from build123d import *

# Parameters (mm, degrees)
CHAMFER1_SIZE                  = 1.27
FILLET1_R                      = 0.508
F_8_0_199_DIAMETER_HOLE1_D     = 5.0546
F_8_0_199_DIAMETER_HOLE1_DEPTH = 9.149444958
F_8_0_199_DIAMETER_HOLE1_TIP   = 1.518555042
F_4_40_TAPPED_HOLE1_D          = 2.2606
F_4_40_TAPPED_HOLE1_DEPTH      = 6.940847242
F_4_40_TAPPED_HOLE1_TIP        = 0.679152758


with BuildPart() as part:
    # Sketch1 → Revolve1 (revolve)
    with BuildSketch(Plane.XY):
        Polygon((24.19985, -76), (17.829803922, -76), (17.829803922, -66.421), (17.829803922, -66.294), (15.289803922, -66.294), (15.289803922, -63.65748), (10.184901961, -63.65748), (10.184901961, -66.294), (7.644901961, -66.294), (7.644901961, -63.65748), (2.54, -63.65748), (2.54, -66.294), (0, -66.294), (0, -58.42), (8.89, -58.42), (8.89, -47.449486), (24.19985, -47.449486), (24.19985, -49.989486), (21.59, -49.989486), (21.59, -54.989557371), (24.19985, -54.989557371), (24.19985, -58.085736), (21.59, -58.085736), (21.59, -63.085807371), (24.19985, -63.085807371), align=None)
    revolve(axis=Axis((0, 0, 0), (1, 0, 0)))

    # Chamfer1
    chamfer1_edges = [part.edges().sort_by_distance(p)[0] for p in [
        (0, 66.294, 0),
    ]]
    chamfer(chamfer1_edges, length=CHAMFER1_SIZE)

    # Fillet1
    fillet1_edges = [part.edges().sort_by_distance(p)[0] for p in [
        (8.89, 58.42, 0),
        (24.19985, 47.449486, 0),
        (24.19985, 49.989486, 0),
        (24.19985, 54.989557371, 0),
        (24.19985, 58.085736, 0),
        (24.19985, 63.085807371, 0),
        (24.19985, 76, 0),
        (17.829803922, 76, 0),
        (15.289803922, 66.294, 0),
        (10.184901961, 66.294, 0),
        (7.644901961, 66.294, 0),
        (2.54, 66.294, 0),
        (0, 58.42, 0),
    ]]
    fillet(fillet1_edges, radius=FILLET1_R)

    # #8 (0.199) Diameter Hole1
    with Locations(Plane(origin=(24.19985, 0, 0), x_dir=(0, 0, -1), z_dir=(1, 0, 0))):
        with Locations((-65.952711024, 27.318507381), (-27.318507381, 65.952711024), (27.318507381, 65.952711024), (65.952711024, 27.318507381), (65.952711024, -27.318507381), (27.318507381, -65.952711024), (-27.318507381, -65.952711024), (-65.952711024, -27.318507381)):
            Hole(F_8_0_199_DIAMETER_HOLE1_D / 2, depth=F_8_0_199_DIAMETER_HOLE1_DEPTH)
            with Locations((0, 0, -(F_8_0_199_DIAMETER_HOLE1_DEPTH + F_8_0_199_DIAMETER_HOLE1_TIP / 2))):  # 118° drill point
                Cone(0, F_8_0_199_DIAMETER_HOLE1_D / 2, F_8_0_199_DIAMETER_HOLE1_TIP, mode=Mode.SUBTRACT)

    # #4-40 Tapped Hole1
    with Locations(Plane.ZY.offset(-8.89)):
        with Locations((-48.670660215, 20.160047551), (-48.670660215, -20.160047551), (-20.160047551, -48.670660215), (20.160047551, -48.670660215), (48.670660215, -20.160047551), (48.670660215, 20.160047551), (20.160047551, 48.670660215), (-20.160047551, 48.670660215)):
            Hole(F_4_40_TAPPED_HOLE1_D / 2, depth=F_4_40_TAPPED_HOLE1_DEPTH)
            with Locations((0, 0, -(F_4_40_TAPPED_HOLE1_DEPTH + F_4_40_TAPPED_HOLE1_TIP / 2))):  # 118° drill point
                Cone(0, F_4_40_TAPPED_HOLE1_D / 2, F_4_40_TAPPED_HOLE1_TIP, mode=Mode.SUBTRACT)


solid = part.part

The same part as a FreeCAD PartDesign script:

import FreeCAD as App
import Part
import Sketcher
Q = App.Units.Quantity


def edges_at(feature, points):
    """Names of the edges that pass closest to the given points."""
    edges = feature.Shape.Edges
    near = lambda p: min(range(len(edges)), key=lambda i: edges[i].distToShape(Part.Vertex(*p))[0])
    return sorted({f"Edge{near(p) + 1}" for p in points})


def add_polygon(sketch, points):
    """Adds a closed chain of lines whose ends are joined by coincident constraints."""
    first, n = sketch.GeometryCount, len(points)
    for a, b in zip(points, points[1:] + points[:1]):
        sketch.addGeometry(Part.LineSegment(App.Vector(*a, 0), App.Vector(*b, 0)), False)
    for i in range(n):
        sketch.addConstraint(Sketcher.Constraint("Coincident", first + i, 2, first + (i + 1) % n, 1))

doc = App.newDocument("Part")
params = doc.addObject("Spreadsheet::Sheet", "Params")
for row, (alias, value) in enumerate([
    ("sketch1_width", "0.1 in"),
    ("sketch1_width2", "0.35 in"),
    ("sketch1_height", "0.31 in"),
    ("revolution_angle", "360 deg"),
    ("chamfer_size", "0.05 in"),
    ("fillet_radius", "0.02 in"),
    ("sketch2_diameter", "0.199 in"),
    ("hole_diameter", "0.199 in"),
    ("hole_depth", "9.149445 mm"),
    ("sketch3_diameter", "0.089 in"),
    ("hole2_diameter", "0.089 in"),
    ("hole2_depth", "6.940847 mm"),
], start=1):
    params.set(f"A{row}", alias)
    params.set(f"B{row}", "=" + value)
    params.setAlias(f"B{row}", alias)

body = doc.addObject("PartDesign::Body", "Body")

sketch1 = doc.addObject("Sketcher::SketchObject", "Sketch")
body.addObject(sketch1)
sketch1.AttachmentSupport = (doc.XY_Plane, [""])
sketch1.MapMode = "FlatFace"
add_polygon(sketch1, [(17.8, -76), (24.2, -76), (24.2, -63.1), (21.6, -63.1), (21.6, -58.1), (24.2, -58.1), (24.2, -55), (21.6, -55), (21.6, -50), (24.2, -50), (24.2, -47.4), (8.9, -47.4), (8.9, -58.4), (0, -58.4), (0, -66.3), (2.5, -66.3), (2.5, -63.7), (7.6, -63.7), (7.6, -66.3), (10.2, -66.3), (10.2, -63.7), (15.3, -63.7), (15.3, -66.3), (17.8, -66.3)])
sketch1.addConstraint(Sketcher.Constraint("Horizontal", 0))
sketch1.addConstraint(Sketcher.Constraint("Vertical", 1))
sketch1.addConstraint(Sketcher.Constraint("Horizontal", 2))
sketch1.addConstraint(Sketcher.Constraint("Vertical", 3))
sketch1.addConstraint(Sketcher.Constraint("Horizontal", 4))
sketch1.addConstraint(Sketcher.Constraint("Vertical", 5))
sketch1.addConstraint(Sketcher.Constraint("Horizontal", 6))
sketch1.addConstraint(Sketcher.Constraint("Vertical", 7))
sketch1.addConstraint(Sketcher.Constraint("Horizontal", 8))
sketch1.addConstraint(Sketcher.Constraint("Vertical", 9))
sketch1.addConstraint(Sketcher.Constraint("Horizontal", 10))
sketch1.addConstraint(Sketcher.Constraint("Vertical", 11))
sketch1.addConstraint(Sketcher.Constraint("Horizontal", 12))
sketch1.addConstraint(Sketcher.Constraint("Vertical", 13))
sketch1.addConstraint(Sketcher.Constraint("Horizontal", 14))
sketch1.addConstraint(Sketcher.Constraint("Vertical", 15))
sketch1.addConstraint(Sketcher.Constraint("Horizontal", 16))
sketch1.addConstraint(Sketcher.Constraint("Vertical", 17))
sketch1.addConstraint(Sketcher.Constraint("Horizontal", 18))
sketch1.addConstraint(Sketcher.Constraint("Vertical", 19))
sketch1.addConstraint(Sketcher.Constraint("Horizontal", 20))
sketch1.addConstraint(Sketcher.Constraint("Vertical", 21))
sketch1.addConstraint(Sketcher.Constraint("Horizontal", 22))
sketch1.addConstraint(Sketcher.Constraint("Vertical", 23))
sketch1.addConstraint(Sketcher.Constraint("PointOnObject", 12, 2, -2))
sketch1.addConstraint(Sketcher.Constraint("Horizontal", 14, 2, 17, 2))
sketch1.addConstraint(Sketcher.Constraint("Horizontal", 16, 2, 19, 2))
sketch1.addConstraint(Sketcher.Constraint("Horizontal", 18, 2, 21, 2))
sketch1.addConstraint(Sketcher.Constraint("Vertical", 1, 2, 4, 2))
sketch1.addConstraint(Sketcher.Constraint("Vertical", 3, 2, 6, 2))
sketch1.addConstraint(Sketcher.Constraint("Vertical", 5, 2, 8, 2))
sketch1.addConstraint(Sketcher.Constraint("Equal", 14, 18))
sketch1.addConstraint(Sketcher.Constraint("Equal", 16, 20))
sketch1.addConstraint(Sketcher.Constraint("Equal", 18, 22))
sketch1.addConstraint(Sketcher.Constraint("Equal", 3, 7))
sketch1.addConstraint(Sketcher.Constraint("Equal", 22, 9))
sketch1.addConstraint(Sketcher.Constraint("DistanceX", 14, 1, 14, 2, Q("0.1 in")))
sketch1.addConstraint(Sketcher.Constraint("DistanceX", 12, 2, 12, 1, Q("0.35 in")))
sketch1.addConstraint(Sketcher.Constraint("DistanceY", 13, 2, 13, 1, Q("0.31 in")))
sketch1.addConstraint(Sketcher.Constraint("DistanceY", 11, 2, -1, 1, Q("2.3 in")))
sketch1.addConstraint(Sketcher.Constraint("DistanceX", 10, 2, 7, 2, Q("0.5 in")))
sketch1.addConstraint(Sketcher.Constraint("DistanceY", 15, 1, 15, 2, Q("0.1038 in")))
sketch1.addConstraint(Sketcher.Constraint("DistanceX", 16, 1, 16, 2, 5.104902))
sketch1.addConstraint(Sketcher.Constraint("DistanceY", 23, 2, 23, 1, 9.706))
sketch1.addConstraint(Sketcher.Constraint("DistanceX", 2, 2, 2, 1, 2.60985))
sketch1.addConstraint(Sketcher.Constraint("DistanceY", 3, 1, 3, 2, 5.000071))
sketch1.addConstraint(Sketcher.Constraint("DistanceY", 5, 1, 5, 2, 3.096179))
sketch1.addConstraint(Sketcher.Constraint("DistanceY", 1, 1, 1, 2, 12.914193))
sketch1.setExpression("Constraints[60]", "Params.sketch1_width")
sketch1.setExpression("Constraints[61]", "Params.sketch1_width2")
sketch1.setExpression("Constraints[62]", "Params.sketch1_height")
revolution = doc.addObject("PartDesign::Revolution", "Revolution")
body.addObject(revolution)
revolution.Profile = sketch1
revolution.ReferenceAxis = (sketch1, ["H_Axis"])
revolution.setExpression("Angle", "Params.revolution_angle")
doc.recompute()

chamfer = doc.addObject("PartDesign::Chamfer", "Chamfer")
body.addObject(chamfer)
chamfer.Base = (revolution, edges_at(revolution, [(0, 66.294, 0)]))
chamfer.setExpression("Size", "Params.chamfer_size")
doc.recompute()

fillet = doc.addObject("PartDesign::Fillet", "Fillet")
body.addObject(fillet)
fillet.Base = (chamfer, edges_at(chamfer, [
    (8.89, 58.42, 0),
    (24.2, 47.449, 0),
    (24.2, 49.989, 0),
    (24.2, 54.99, 0),
    (24.2, 58.086, 0),
    (24.2, 63.086, 0),
    (24.2, 76, 0),
    (17.83, 76, 0),
    (15.29, 66.294, 0),
    (10.185, 66.294, 0),
    (7.645, 66.294, 0),
    (2.54, 66.294, 0),
    (0, 58.42, 0),
]))
fillet.setExpression("Radius", "Params.fillet_radius")

sketch2 = doc.addObject("Sketcher::SketchObject", "Sketch001")
body.addObject(sketch2)
sketch2.AttachmentSupport = (doc.YZ_Plane, [""])
sketch2.MapMode = "FlatFace"
sketch2.AttachmentOffset = App.Placement(App.Vector(0, 0, 24.19985), App.Rotation())
sketch2.addGeometry(Part.Circle(App.Vector(27.3, 66, 0), App.Vector(0, 0, 1), 2.5), False)
sketch2.addGeometry(Part.Circle(App.Vector(66, 27.3, 0), App.Vector(0, 0, 1), 2.5), False)
sketch2.addGeometry(Part.Circle(App.Vector(66, -27.3, 0), App.Vector(0, 0, 1), 2.5), False)
sketch2.addGeometry(Part.Circle(App.Vector(27.3, -66, 0), App.Vector(0, 0, 1), 2.5), False)
sketch2.addGeometry(Part.Circle(App.Vector(-27.3, -66, 0), App.Vector(0, 0, 1), 2.5), False)
sketch2.addGeometry(Part.Circle(App.Vector(-66, -27.3, 0), App.Vector(0, 0, 1), 2.5), False)
sketch2.addGeometry(Part.Circle(App.Vector(-66, 27.3, 0), App.Vector(0, 0, 1), 2.5), False)
sketch2.addGeometry(Part.Circle(App.Vector(-27.3, 66, 0), App.Vector(0, 0, 1), 2.5), False)
sketch2.addConstraint(Sketcher.Constraint("Equal", 0, 1))
sketch2.addConstraint(Sketcher.Constraint("Equal", 1, 2))
sketch2.addConstraint(Sketcher.Constraint("Equal", 2, 3))
sketch2.addConstraint(Sketcher.Constraint("Equal", 3, 4))
sketch2.addConstraint(Sketcher.Constraint("Equal", 4, 5))
sketch2.addConstraint(Sketcher.Constraint("Equal", 5, 6))
sketch2.addConstraint(Sketcher.Constraint("Equal", 6, 7))
sketch2.addConstraint(Sketcher.Constraint("Symmetric", 0, 3, 4, 3, -1, 1))
sketch2.addConstraint(Sketcher.Constraint("Symmetric", 1, 3, 5, 3, -1, 1))
sketch2.addConstraint(Sketcher.Constraint("Symmetric", 2, 3, 6, 3, -1, 1))
sketch2.addConstraint(Sketcher.Constraint("Symmetric", 3, 3, 7, 3, -1, 1))
sketch2.addConstraint(Sketcher.Constraint("Symmetric", 3, 3, 4, 3, -2))
sketch2.addConstraint(Sketcher.Constraint("Symmetric", 2, 3, 5, 3, -2))
sketch2.addConstraint(Sketcher.Constraint("Diameter", 0, Q("0.199 in")))
sketch2.addConstraint(Sketcher.Constraint("DistanceY", -1, 1, 0, 3, 65.952711))
sketch2.addConstraint(Sketcher.Constraint("DistanceX", -1, 1, 1, 3, 65.952711))
sketch2.addConstraint(Sketcher.Constraint("DistanceY", 2, 3, 0, 3, 93.271218))
sketch2.addConstraint(Sketcher.Constraint("DistanceX", 4, 3, 2, 3, 93.271218))
sketch2.setExpression("Constraints[13]", "Params.sketch2_diameter")
doc.recompute()
hole = doc.addObject("PartDesign::Hole", "Hole")
body.addObject(hole)
hole.Profile = sketch2
hole.ThreadType = "None"
hole.setExpression("Diameter", "Params.hole_diameter")
hole.DepthType = "Dimension"
hole.setExpression("Depth", "Params.hole_depth")
hole.DrillPoint = "Angled"
hole.DrillPointAngle = 118

sketch3 = doc.addObject("Sketcher::SketchObject", "Sketch002")
body.addObject(sketch3)
sketch3.AttachmentSupport = (doc.YZ_Plane, [""])
sketch3.MapMode = "FlatFace"
sketch3.AttachmentOffset = App.Placement(App.Vector(0, 0, 0.35 * 25.4), App.Rotation())
sketch3.addGeometry(Part.Circle(App.Vector(20.2, -48.7, 0), App.Vector(0, 0, 1), 1.1), False)
sketch3.addGeometry(Part.Circle(App.Vector(-20.2, -48.7, 0), App.Vector(0, 0, 1), 1.1), False)
sketch3.addGeometry(Part.Circle(App.Vector(-48.7, -20.2, 0), App.Vector(0, 0, 1), 1.1), False)
sketch3.addGeometry(Part.Circle(App.Vector(-48.7, 20.2, 0), App.Vector(0, 0, 1), 1.1), False)
sketch3.addGeometry(Part.Circle(App.Vector(-20.2, 48.7, 0), App.Vector(0, 0, 1), 1.1), False)
sketch3.addGeometry(Part.Circle(App.Vector(20.2, 48.7, 0), App.Vector(0, 0, 1), 1.1), False)
sketch3.addGeometry(Part.Circle(App.Vector(48.7, 20.2, 0), App.Vector(0, 0, 1), 1.1), False)
sketch3.addGeometry(Part.Circle(App.Vector(48.7, -20.2, 0), App.Vector(0, 0, 1), 1.1), False)
sketch3.addConstraint(Sketcher.Constraint("Equal", 0, 1))
sketch3.addConstraint(Sketcher.Constraint("Equal", 1, 2))
sketch3.addConstraint(Sketcher.Constraint("Equal", 2, 3))
sketch3.addConstraint(Sketcher.Constraint("Equal", 3, 4))
sketch3.addConstraint(Sketcher.Constraint("Equal", 4, 5))
sketch3.addConstraint(Sketcher.Constraint("Equal", 5, 6))
sketch3.addConstraint(Sketcher.Constraint("Equal", 6, 7))
sketch3.addConstraint(Sketcher.Constraint("Symmetric", 0, 3, 4, 3, -1, 1))
sketch3.addConstraint(Sketcher.Constraint("Symmetric", 1, 3, 5, 3, -1, 1))
sketch3.addConstraint(Sketcher.Constraint("Symmetric", 2, 3, 6, 3, -1, 1))
sketch3.addConstraint(Sketcher.Constraint("Symmetric", 3, 3, 7, 3, -1, 1))
sketch3.addConstraint(Sketcher.Constraint("Symmetric", 0, 3, 1, 3, -2))
sketch3.addConstraint(Sketcher.Constraint("Symmetric", 3, 3, 6, 3, -2))
sketch3.addConstraint(Sketcher.Constraint("Diameter", 0, Q("0.089 in")))
sketch3.addConstraint(Sketcher.Constraint("DistanceY", 0, 3, -1, 1, 48.67066))
sketch3.addConstraint(Sketcher.Constraint("DistanceX", 2, 3, -1, 1, 48.67066))
sketch3.addConstraint(Sketcher.Constraint("DistanceX", -1, 1, 0, 3, 20.160048))
sketch3.addConstraint(Sketcher.Constraint("DistanceY", 2, 3, -1, 1, 20.160048))
sketch3.setExpression("Constraints[13]", "Params.sketch3_diameter")
doc.recompute()
hole2 = doc.addObject("PartDesign::Hole", "Hole001")
body.addObject(hole2)
hole2.Profile = sketch3
hole2.ThreadType = "None"
hole2.setExpression("Diameter", "Params.hole2_diameter")
hole2.DepthType = "Dimension"
hole2.setExpression("Depth", "Params.hole2_depth")
hole2.DrillPoint = "Angled"
hole2.DrillPointAngle = 118
hole2.Reversed = True

doc.recompute()
